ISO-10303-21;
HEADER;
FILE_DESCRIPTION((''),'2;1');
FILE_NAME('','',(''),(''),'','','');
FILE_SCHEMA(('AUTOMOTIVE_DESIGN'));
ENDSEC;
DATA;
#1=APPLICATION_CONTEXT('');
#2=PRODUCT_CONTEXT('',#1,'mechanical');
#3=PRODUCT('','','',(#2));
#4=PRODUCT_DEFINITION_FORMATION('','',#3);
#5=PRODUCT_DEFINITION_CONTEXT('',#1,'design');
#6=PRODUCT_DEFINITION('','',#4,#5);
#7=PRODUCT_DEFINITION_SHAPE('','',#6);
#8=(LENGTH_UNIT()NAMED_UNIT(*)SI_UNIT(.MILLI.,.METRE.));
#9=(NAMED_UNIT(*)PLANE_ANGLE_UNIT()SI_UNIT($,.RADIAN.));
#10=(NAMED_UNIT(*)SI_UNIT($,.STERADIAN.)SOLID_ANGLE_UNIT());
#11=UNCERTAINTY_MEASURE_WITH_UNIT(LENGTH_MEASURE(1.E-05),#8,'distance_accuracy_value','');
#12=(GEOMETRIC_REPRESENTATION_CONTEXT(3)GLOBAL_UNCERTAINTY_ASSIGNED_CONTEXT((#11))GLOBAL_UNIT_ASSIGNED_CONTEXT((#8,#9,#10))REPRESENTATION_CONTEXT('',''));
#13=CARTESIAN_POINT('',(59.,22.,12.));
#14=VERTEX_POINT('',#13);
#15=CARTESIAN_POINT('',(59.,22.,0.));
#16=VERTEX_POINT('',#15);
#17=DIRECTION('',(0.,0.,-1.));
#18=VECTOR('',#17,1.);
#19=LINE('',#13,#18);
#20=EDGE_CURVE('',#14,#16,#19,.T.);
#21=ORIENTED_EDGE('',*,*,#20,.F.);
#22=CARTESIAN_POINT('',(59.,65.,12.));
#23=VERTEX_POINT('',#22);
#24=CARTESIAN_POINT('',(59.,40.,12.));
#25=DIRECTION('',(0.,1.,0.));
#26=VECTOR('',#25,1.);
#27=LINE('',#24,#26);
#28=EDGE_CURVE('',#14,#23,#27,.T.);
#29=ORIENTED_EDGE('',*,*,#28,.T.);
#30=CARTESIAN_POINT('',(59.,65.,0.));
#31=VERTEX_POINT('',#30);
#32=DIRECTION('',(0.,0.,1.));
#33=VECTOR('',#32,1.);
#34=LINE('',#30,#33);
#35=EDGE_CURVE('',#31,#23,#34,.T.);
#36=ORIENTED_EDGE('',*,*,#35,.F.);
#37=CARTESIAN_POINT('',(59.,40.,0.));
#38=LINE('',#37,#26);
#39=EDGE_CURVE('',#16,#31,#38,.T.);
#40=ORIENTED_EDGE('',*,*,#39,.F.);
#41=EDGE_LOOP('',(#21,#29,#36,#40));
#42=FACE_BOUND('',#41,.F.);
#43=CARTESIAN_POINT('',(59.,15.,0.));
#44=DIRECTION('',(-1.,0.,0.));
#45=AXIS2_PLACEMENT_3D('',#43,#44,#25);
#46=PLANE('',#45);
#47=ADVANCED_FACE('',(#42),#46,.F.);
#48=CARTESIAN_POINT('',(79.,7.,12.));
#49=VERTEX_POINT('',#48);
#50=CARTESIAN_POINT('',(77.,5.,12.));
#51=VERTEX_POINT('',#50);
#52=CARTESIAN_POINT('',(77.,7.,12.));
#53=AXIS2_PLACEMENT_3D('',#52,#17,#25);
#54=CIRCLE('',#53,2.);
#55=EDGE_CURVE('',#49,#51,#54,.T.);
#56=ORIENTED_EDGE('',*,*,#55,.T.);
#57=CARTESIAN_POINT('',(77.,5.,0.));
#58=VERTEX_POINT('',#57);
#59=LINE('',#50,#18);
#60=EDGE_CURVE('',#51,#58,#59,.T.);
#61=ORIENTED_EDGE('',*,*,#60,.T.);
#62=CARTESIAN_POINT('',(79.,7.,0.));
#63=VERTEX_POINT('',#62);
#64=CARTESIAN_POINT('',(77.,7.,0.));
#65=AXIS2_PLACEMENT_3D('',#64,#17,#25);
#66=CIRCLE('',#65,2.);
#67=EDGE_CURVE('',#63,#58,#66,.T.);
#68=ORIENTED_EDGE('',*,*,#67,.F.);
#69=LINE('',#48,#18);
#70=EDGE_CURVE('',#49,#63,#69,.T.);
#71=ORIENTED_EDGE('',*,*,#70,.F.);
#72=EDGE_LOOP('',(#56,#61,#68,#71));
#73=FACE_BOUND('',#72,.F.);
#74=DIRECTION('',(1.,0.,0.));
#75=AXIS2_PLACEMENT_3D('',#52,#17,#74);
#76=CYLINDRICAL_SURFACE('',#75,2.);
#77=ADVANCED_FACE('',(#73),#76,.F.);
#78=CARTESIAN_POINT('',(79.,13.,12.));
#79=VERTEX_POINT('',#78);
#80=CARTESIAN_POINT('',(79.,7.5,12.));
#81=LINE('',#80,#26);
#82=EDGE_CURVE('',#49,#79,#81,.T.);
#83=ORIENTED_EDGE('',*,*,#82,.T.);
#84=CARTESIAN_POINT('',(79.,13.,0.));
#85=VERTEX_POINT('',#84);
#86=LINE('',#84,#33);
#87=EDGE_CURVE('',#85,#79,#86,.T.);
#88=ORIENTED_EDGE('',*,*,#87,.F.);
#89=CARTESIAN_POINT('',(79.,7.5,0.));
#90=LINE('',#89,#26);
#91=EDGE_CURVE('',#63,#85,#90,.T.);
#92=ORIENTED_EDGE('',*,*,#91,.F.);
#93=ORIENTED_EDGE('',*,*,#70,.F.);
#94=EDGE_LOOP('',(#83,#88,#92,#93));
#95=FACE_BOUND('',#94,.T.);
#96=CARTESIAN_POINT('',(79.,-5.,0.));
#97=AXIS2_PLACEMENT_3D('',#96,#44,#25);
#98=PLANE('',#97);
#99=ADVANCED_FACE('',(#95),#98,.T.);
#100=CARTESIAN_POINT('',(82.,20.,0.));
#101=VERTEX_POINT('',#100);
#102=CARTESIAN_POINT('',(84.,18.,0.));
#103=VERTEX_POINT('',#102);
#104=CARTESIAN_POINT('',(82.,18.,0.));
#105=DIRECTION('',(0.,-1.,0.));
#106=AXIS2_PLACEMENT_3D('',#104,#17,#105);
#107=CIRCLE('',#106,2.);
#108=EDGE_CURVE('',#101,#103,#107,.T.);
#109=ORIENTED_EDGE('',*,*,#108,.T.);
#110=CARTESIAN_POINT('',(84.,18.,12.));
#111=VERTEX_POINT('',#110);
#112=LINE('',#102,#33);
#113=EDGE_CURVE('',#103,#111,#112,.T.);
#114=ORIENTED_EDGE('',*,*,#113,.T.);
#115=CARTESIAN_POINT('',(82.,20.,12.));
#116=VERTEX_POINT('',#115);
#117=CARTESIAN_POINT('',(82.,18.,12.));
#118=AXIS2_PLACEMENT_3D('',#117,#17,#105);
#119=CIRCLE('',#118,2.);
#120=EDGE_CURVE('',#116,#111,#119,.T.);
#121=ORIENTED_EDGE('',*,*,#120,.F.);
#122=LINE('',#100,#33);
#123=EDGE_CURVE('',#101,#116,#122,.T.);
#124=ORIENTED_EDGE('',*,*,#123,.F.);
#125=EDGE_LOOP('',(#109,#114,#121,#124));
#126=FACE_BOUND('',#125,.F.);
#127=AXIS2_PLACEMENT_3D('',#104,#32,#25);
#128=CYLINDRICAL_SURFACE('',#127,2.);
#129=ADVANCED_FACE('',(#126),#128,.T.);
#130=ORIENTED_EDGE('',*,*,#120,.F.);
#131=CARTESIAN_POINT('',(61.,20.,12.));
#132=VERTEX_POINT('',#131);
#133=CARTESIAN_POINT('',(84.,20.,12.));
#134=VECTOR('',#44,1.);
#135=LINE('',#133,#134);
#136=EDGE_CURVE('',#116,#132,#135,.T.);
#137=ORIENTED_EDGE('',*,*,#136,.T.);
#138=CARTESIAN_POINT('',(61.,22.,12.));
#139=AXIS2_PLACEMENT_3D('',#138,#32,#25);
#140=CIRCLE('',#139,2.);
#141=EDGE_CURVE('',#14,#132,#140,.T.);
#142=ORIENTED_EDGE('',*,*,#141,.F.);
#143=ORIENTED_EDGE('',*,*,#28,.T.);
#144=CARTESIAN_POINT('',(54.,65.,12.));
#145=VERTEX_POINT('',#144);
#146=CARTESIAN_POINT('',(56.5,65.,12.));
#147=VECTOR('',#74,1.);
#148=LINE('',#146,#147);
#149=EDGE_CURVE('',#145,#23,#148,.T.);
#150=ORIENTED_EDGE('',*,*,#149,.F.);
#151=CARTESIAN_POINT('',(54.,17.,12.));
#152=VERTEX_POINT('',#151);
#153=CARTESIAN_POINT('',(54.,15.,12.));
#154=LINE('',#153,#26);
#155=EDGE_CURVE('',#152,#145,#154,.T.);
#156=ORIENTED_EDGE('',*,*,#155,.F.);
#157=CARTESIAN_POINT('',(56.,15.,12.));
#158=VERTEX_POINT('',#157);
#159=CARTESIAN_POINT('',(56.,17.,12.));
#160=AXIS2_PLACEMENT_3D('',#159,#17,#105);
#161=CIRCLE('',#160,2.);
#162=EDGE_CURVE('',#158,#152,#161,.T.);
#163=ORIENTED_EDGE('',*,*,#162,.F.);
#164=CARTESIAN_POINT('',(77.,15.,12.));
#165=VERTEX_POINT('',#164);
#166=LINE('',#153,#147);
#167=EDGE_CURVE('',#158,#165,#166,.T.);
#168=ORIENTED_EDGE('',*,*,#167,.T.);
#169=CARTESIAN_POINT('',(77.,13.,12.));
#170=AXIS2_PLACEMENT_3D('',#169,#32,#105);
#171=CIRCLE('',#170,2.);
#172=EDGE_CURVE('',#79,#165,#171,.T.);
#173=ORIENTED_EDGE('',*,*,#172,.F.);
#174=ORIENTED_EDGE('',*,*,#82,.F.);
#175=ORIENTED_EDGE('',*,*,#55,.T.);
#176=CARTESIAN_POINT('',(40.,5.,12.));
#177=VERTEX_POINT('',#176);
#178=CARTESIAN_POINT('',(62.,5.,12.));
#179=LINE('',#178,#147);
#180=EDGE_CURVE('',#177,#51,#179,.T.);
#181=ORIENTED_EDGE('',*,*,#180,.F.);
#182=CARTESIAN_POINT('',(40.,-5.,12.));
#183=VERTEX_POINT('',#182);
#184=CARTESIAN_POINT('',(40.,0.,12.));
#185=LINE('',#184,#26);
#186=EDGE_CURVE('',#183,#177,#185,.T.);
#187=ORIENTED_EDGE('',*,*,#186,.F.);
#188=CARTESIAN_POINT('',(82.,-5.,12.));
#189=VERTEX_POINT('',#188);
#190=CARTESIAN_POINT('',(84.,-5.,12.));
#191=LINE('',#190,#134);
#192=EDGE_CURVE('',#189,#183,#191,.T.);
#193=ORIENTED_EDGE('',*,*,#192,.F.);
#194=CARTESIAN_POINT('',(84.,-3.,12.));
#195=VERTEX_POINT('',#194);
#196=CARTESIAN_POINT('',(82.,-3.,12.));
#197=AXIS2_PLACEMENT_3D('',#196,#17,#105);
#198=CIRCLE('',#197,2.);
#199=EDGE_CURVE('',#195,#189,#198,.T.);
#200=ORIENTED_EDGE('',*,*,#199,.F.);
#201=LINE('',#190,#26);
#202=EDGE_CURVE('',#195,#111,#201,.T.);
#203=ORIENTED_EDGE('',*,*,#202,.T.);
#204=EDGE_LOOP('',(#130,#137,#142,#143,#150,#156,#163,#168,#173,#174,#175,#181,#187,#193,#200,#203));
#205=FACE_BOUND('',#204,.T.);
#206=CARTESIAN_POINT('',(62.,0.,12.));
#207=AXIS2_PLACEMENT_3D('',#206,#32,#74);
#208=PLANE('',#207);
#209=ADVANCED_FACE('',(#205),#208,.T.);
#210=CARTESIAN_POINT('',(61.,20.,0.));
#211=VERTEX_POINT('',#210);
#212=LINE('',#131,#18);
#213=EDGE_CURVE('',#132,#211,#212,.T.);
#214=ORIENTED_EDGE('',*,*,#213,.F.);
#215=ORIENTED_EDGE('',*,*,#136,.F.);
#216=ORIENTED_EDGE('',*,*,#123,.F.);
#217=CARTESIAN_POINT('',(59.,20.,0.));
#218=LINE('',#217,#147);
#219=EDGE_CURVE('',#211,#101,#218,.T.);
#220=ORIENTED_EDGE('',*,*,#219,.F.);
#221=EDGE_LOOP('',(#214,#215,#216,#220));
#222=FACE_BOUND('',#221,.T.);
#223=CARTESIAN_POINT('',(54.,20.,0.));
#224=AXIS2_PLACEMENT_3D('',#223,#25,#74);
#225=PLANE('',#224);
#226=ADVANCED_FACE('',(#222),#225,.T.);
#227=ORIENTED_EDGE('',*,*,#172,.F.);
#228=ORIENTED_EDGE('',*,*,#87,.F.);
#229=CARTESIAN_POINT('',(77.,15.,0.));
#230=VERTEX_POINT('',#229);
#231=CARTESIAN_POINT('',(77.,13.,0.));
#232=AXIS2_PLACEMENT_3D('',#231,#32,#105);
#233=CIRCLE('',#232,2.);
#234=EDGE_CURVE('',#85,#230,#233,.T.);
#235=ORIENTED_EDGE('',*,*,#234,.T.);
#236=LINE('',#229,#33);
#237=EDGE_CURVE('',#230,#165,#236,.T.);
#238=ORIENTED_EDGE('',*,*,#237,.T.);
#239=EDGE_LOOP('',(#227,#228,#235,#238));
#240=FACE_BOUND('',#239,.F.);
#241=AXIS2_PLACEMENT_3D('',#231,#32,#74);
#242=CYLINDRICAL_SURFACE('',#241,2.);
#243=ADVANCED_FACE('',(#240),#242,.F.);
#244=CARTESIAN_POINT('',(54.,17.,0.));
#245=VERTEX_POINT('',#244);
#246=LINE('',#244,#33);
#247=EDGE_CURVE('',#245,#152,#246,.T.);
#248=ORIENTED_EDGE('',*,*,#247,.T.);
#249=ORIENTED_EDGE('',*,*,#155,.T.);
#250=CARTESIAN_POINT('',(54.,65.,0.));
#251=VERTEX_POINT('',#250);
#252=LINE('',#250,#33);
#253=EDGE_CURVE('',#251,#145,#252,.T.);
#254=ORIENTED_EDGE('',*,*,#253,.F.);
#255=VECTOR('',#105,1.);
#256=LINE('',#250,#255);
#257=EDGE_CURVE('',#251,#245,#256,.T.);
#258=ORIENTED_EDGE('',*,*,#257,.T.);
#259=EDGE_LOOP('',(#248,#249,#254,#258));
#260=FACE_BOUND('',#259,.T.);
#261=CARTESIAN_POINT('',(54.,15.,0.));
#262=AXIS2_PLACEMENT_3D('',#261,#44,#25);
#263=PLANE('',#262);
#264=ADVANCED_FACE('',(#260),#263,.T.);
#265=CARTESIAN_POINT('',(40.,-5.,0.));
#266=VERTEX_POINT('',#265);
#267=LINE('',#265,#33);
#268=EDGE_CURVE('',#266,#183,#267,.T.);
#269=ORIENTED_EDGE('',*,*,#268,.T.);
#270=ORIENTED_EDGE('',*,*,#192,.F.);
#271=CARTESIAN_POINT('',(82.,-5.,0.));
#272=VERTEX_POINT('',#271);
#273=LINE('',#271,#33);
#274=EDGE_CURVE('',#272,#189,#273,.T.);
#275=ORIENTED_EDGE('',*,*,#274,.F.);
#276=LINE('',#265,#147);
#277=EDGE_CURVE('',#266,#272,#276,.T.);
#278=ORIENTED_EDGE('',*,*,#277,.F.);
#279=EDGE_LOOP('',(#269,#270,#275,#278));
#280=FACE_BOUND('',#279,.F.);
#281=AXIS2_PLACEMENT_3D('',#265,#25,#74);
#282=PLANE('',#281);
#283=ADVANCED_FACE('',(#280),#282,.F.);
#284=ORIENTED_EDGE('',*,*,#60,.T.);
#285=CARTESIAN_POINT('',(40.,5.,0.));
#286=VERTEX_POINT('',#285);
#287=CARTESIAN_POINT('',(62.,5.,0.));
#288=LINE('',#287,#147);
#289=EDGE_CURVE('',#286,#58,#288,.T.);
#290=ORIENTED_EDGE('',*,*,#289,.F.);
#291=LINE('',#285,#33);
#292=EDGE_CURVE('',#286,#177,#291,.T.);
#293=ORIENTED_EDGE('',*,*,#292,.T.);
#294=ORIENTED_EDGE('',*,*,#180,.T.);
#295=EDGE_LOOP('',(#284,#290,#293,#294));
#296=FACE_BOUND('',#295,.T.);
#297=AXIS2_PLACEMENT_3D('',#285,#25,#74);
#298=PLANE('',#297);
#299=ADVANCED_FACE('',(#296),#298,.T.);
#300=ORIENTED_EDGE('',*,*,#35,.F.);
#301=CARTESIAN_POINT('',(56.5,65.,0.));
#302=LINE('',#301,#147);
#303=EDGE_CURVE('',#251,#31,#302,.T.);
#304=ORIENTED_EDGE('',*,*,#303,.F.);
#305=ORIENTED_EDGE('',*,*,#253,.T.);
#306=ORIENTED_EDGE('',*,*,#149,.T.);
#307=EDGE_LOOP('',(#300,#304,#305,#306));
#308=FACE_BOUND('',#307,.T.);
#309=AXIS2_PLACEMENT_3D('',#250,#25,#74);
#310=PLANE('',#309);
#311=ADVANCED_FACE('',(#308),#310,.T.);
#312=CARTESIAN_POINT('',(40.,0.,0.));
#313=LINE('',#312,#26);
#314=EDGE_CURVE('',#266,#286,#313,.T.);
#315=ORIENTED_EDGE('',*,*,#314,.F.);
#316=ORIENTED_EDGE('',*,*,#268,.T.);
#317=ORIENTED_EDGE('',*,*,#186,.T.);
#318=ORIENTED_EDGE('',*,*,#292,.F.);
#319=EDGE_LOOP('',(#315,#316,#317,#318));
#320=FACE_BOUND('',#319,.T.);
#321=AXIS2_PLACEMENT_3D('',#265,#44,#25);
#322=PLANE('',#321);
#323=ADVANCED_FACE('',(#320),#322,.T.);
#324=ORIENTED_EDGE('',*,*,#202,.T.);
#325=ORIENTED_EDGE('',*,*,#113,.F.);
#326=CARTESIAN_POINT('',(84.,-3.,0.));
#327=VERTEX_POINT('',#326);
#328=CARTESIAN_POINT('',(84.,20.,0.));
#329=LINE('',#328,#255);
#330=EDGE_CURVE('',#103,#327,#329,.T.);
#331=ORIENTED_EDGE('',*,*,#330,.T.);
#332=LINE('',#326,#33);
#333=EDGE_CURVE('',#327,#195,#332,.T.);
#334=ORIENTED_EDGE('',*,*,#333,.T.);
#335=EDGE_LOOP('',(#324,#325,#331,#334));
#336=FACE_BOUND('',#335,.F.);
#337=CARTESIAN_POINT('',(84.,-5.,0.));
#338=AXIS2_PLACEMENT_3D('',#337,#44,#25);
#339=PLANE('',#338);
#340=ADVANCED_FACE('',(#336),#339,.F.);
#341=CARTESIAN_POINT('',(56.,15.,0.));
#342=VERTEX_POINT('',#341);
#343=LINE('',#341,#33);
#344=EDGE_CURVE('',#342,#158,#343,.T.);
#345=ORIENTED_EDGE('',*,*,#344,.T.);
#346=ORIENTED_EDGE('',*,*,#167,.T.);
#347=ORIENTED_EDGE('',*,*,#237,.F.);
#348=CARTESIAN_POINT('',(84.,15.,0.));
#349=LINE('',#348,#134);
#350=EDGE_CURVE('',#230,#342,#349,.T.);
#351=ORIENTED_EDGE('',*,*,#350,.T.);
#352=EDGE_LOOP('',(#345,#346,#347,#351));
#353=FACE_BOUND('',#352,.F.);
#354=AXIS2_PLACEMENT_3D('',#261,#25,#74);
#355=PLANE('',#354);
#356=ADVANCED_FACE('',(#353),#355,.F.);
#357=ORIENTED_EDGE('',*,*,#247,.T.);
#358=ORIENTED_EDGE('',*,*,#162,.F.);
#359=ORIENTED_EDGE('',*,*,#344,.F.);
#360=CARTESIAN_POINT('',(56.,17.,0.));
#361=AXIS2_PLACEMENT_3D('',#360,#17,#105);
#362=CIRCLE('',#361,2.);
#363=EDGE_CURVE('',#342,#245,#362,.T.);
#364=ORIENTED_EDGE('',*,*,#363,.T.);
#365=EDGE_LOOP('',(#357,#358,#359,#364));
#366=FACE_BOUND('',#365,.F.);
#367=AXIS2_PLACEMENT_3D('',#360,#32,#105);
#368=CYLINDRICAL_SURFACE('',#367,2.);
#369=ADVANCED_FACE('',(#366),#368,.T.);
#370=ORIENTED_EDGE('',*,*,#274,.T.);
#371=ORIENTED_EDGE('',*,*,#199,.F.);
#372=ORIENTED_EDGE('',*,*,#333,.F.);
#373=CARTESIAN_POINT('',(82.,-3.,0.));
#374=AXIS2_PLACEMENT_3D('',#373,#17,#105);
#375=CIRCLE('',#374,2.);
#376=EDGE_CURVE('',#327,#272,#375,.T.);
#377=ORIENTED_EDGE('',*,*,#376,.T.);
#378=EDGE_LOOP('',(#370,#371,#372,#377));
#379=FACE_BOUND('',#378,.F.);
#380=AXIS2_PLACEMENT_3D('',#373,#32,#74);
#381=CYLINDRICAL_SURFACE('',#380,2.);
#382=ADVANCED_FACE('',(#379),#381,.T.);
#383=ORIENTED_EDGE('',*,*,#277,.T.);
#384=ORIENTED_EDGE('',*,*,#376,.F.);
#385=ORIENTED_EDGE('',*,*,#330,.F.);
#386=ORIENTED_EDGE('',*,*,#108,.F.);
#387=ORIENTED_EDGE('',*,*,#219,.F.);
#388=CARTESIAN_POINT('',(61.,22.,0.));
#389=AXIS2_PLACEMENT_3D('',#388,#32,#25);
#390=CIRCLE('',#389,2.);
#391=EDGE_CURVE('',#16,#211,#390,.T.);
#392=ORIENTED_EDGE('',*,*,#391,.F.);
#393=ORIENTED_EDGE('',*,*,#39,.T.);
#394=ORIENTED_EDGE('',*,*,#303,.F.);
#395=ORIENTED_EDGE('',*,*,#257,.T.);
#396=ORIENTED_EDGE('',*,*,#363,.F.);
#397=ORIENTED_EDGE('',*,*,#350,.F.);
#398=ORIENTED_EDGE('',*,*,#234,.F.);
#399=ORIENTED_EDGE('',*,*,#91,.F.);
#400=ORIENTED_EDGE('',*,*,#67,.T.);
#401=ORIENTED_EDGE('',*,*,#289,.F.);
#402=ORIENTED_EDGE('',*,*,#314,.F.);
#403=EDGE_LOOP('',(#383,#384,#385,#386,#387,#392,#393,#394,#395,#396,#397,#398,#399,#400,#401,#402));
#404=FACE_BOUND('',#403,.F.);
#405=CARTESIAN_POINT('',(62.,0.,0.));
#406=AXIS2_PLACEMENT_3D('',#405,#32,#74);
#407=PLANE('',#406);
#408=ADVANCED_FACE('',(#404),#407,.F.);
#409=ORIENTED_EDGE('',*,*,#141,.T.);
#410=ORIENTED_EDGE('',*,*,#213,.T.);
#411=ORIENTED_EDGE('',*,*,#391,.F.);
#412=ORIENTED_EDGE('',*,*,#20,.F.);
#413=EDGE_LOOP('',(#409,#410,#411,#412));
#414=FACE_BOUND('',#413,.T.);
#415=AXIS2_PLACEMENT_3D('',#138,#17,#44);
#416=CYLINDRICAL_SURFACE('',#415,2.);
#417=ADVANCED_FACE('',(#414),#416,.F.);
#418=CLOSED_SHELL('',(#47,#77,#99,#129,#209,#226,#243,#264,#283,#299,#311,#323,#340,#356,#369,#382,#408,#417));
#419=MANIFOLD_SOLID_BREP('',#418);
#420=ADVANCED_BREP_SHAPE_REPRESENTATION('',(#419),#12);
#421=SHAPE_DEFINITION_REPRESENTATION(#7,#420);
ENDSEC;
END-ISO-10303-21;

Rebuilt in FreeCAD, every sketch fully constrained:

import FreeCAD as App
import Part
import Sketcher


def edges_at(feature, points):
    """Names of the edges that pass closest to the given points."""
    edges = feature.Shape.Edges
    near = lambda p: min(range(len(edges)), key=lambda i: edges[i].distToShape(Part.Vertex(*p))[0])
    return sorted({f"Edge{near(p) + 1}" for p in points})

doc = App.newDocument("Part")
body = doc.addObject("PartDesign::Body", "Body")

sketch1 = body.newObject("Sketcher::SketchObject", "Sketch")
sketch1.AttachmentSupport = (doc.getObject("XY_Plane"), [""])
sketch1.MapMode = "FlatFace"
sketch1.addGeometry([
    Part.LineSegment(App.Vector(54, 20, 0), App.Vector(54, 15, 0)),
    Part.LineSegment(App.Vector(54, 15, 0), App.Vector(84, 15, 0)),
    Part.LineSegment(App.Vector(84, 15, 0), App.Vector(84, 20, 0)),
    Part.LineSegment(App.Vector(84, 20, 0), App.Vector(54, 20, 0)),
], False)
sketch1.addConstraint([
    Sketcher.Constraint("Coincident", 0, 2, 1, 1),
    Sketcher.Constraint("Coincident", 1, 2, 2, 1),
    Sketcher.Constraint("Coincident", 2, 2, 3, 1),
    Sketcher.Constraint("Coincident", 3, 2, 0, 1),
    Sketcher.Constraint("Vertical", 0),
    Sketcher.Constraint("Horizontal", 1),
    Sketcher.Constraint("Vertical", 2),
    Sketcher.Constraint("Horizontal", 3),
    Sketcher.Constraint("DistanceX", 1, 1, 1, 2, 30.0),
    Sketcher.Constraint("DistanceY", 0, 2, 0, 1, 5.0),
    Sketcher.Constraint("DistanceX", -1, 1, 0, 2, 54.0),
    Sketcher.Constraint("DistanceY", -1, 1, 0, 2, 15.0),
])
pad1 = body.newObject("PartDesign::Pad", "Pad")
pad1.Profile = sketch1
pad1.Length = 12
body2 = doc.addObject("PartDesign::Body", "Body001")

sketch2 = body2.newObject("Sketcher::SketchObject", "Sketch001")
sketch2.AttachmentSupport = (doc.getObject("XY_Plane001"), [""])
sketch2.MapMode = "FlatFace"
sketch2.addGeometry([
    Part.LineSegment(App.Vector(79, 20, 0), App.Vector(79, -5, 0)),
    Part.LineSegment(App.Vector(79, -5, 0), App.Vector(84, -5, 0)),
    Part.LineSegment(App.Vector(84, -5, 0), App.Vector(84, 20, 0)),
    Part.LineSegment(App.Vector(84, 20, 0), App.Vector(79, 20, 0)),
], False)
sketch2.addConstraint([
    Sketcher.Constraint("Coincident", 0, 2, 1, 1),
    Sketcher.Constraint("Coincident", 1, 2, 2, 1),
    Sketcher.Constraint("Coincident", 2, 2, 3, 1),
    Sketcher.Constraint("Coincident", 3, 2, 0, 1),
    Sketcher.Constraint("Vertical", 0),
    Sketcher.Constraint("Horizontal", 1),
    Sketcher.Constraint("Vertical", 2),
    Sketcher.Constraint("Horizontal", 3),
    Sketcher.Constraint("DistanceX", 1, 1, 1, 2, 5.0),
    Sketcher.Constraint("DistanceY", 0, 2, 0, 1, 25.0),
    Sketcher.Constraint("DistanceX", -1, 1, 0, 2, 79.0),
    Sketcher.Constraint("DistanceY", 0, 2, -1, 1, 5.0),
])
pad2 = body2.newObject("PartDesign::Pad", "Pad001")
pad2.Profile = sketch2
pad2.Length = 12
body3 = doc.addObject("PartDesign::Body", "Body002")

sketch3 = body3.newObject("Sketcher::SketchObject", "Sketch002")
sketch3.AttachmentSupport = (doc.getObject("XY_Plane002"), [""])
sketch3.MapMode = "FlatFace"
sketch3.addGeometry([
    Part.LineSegment(App.Vector(40, 5, 0), App.Vector(40, -5, 0)),
    Part.LineSegment(App.Vector(40, -5, 0), App.Vector(84, -5, 0)),
    Part.LineSegment(App.Vector(84, -5, 0), App.Vector(84, 5, 0)),
    Part.LineSegment(App.Vector(84, 5, 0), App.Vector(40, 5, 0)),
], False)
sketch3.addConstraint([
    Sketcher.Constraint("Coincident", 0, 2, 1, 1),
    Sketcher.Constraint("Coincident", 1, 2, 2, 1),
    Sketcher.Constraint("Coincident", 2, 2, 3, 1),
    Sketcher.Constraint("Coincident", 3, 2, 0, 1),
    Sketcher.Constraint("Vertical", 0),
    Sketcher.Constraint("Horizontal", 1),
    Sketcher.Constraint("Vertical", 2),
    Sketcher.Constraint("Horizontal", 3),
    Sketcher.Constraint("DistanceX", 1, 1, 1, 2, 44.0),
    Sketcher.Constraint("DistanceY", 0, 2, 0, 1, 10.0),
    Sketcher.Constraint("DistanceX", -1, 1, 0, 2, 40.0),
    Sketcher.Constraint("DistanceY", 0, 2, -1, 1, 5.0),
])
pad3 = body3.newObject("PartDesign::Pad", "Pad002")
pad3.Profile = sketch3
pad3.Length = 12
body4 = doc.addObject("PartDesign::Body", "Body003")

sketch4 = body4.newObject("Sketcher::SketchObject", "Sketch003")
sketch4.AttachmentSupport = (doc.getObject("XY_Plane003"), [""])
sketch4.MapMode = "FlatFace"
sketch4.addGeometry([
    Part.LineSegment(App.Vector(54, 65, 0), App.Vector(54, 15, 0)),
    Part.LineSegment(App.Vector(54, 15, 0), App.Vector(59, 15, 0)),
    Part.LineSegment(App.Vector(59, 15, 0), App.Vector(59, 65, 0)),
    Part.LineSegment(App.Vector(59, 65, 0), App.Vector(54, 65, 0)),
], False)
sketch4.addConstraint([
    Sketcher.Constraint("Coincident", 0, 2, 1, 1),
    Sketcher.Constraint("Coincident", 1, 2, 2, 1),
    Sketcher.Constraint("Coincident", 2, 2, 3, 1),
    Sketcher.Constraint("Coincident", 3, 2, 0, 1),
    Sketcher.Constraint("Vertical", 0),
    Sketcher.Constraint("Horizontal", 1),
    Sketcher.Constraint("Vertical", 2),
    Sketcher.Constraint("Horizontal", 3),
    Sketcher.Constraint("DistanceX", 1, 1, 1, 2, 5.0),
    Sketcher.Constraint("DistanceY", 0, 2, 0, 1, 50.0),
    Sketcher.Constraint("DistanceX", -1, 1, 0, 2, 54.0),
    Sketcher.Constraint("DistanceY", -1, 1, 0, 2, 15.0),
])
pad4 = body4.newObject("PartDesign::Pad", "Pad003")
pad4.Profile = sketch4
pad4.Length = 12
doc.recompute()

boolean = body4.newObject("PartDesign::Boolean", "Boolean")
boolean.Type = "Fuse"
boolean.addObjects([body])
doc.recompute()

boolean2 = body4.newObject("PartDesign::Boolean", "Boolean001")
boolean2.Type = "Fuse"
boolean2.addObjects([body2])
doc.recompute()

boolean3 = body4.newObject("PartDesign::Boolean", "Boolean002")
boolean3.Type = "Fuse"
boolean3.addObjects([body3])
doc.recompute()

fillet = body4.newObject("PartDesign::Fillet", "Fillet")
fillet.Base = (boolean3, edges_at(boolean3, [
    (79, 15, 6),
    (79, 5, 6),
    (54, 15, 6),
    (59, 20, 6),
    (84, 20, 6),
    (84, -5, 6),
]))
fillet.Radius = 2

doc.recompute()
